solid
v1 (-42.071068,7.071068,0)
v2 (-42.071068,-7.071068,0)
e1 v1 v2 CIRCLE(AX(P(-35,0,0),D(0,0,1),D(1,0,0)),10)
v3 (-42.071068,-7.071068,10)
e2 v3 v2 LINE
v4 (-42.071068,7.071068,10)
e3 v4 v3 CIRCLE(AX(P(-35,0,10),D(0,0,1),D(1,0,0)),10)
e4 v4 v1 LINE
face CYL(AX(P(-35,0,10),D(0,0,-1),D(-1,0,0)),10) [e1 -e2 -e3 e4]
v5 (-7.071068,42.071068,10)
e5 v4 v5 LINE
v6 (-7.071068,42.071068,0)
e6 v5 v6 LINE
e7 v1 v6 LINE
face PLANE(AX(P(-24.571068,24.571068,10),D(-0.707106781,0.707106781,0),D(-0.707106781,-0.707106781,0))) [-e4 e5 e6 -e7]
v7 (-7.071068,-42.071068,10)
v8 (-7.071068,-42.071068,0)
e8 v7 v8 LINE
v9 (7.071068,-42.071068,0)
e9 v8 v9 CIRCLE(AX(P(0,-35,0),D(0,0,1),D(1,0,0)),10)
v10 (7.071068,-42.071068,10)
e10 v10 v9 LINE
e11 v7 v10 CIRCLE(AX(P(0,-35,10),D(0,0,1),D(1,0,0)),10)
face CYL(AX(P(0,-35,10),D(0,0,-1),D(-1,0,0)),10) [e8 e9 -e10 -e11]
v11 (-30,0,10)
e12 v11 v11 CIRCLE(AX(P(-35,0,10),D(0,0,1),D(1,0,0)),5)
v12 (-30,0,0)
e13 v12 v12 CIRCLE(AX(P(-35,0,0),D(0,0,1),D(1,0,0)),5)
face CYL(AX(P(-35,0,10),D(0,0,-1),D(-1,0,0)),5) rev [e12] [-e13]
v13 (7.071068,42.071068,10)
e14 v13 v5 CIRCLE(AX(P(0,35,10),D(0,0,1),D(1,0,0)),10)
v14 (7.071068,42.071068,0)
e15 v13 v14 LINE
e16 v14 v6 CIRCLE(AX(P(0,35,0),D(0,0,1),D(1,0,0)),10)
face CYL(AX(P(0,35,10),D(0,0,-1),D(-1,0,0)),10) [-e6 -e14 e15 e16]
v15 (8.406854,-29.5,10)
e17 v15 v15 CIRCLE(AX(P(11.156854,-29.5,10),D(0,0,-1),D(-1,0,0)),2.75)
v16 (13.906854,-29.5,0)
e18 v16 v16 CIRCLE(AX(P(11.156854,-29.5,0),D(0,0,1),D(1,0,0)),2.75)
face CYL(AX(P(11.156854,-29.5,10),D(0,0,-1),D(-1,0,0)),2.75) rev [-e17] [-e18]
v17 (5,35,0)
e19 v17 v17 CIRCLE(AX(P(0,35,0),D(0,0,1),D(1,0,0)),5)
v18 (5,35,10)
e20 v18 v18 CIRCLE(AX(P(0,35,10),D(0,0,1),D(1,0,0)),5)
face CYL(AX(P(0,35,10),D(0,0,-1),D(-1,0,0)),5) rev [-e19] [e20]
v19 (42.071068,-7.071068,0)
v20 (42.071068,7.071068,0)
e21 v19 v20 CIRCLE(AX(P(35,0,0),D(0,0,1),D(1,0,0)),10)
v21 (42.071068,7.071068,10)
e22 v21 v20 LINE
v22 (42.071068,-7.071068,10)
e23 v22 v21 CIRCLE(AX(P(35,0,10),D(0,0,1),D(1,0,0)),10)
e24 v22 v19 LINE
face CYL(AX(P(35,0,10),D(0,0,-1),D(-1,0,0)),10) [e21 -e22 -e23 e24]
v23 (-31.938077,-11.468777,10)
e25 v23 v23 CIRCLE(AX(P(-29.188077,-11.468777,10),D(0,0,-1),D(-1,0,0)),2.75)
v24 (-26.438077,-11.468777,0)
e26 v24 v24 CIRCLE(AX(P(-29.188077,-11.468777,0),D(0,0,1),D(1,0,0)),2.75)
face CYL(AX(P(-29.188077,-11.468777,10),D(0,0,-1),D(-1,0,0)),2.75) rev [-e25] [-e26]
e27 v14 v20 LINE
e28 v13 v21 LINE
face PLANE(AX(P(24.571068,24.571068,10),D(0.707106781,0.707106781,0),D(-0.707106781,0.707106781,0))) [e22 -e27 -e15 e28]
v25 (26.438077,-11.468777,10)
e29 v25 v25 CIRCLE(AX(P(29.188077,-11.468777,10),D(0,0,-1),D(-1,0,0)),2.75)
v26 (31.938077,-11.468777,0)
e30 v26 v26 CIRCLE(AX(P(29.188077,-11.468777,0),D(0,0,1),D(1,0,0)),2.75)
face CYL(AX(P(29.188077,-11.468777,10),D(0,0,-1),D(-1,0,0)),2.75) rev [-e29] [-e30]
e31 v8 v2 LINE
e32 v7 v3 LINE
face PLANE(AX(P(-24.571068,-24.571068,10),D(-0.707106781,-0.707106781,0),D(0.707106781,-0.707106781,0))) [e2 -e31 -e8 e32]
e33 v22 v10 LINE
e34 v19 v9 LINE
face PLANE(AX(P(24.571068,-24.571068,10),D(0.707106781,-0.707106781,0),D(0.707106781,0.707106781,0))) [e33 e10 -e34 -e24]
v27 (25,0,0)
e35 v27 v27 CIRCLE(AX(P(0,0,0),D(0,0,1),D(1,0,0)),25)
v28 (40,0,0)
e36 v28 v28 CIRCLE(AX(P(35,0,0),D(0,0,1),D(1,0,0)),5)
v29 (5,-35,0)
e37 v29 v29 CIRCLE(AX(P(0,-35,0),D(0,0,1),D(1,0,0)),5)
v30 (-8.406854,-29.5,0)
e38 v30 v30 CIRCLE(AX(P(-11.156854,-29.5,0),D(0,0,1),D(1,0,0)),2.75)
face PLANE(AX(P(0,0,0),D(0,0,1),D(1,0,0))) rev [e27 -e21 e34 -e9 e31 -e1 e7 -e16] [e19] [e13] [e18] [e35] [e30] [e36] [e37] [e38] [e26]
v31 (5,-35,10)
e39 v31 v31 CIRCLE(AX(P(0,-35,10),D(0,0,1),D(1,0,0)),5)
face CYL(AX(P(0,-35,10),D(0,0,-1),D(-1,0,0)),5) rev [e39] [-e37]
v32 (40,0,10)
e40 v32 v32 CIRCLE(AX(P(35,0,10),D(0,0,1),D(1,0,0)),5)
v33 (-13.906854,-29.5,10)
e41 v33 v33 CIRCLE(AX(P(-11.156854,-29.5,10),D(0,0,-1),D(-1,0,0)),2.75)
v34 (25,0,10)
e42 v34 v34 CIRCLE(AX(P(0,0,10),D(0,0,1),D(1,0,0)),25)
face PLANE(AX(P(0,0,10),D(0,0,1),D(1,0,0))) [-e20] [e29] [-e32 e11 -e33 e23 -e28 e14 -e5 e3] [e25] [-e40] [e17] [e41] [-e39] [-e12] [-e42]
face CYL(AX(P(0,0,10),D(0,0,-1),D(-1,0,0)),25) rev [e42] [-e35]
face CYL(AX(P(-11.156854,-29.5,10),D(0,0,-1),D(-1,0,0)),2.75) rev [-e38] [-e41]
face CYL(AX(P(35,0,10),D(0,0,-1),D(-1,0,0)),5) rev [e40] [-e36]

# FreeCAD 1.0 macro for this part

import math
import FreeCAD as App
import Part
import Sketcher

V = App.Vector
Q = App.Units.Quantity

doc = App.newDocument("Part")
params = doc.addObject("Spreadsheet::Sheet", "Params")
for row, (alias, value) in enumerate([
    ("sketch1_diameter", "10 mm"),
    ("sketch1_diameter2", "50 mm"),
    ("sketch1_radius", "10 mm"),
    ("pad1_length", "10 mm"),
    ("sketch2_diameter", "5.5 mm"),
], start=1):
    params.set(f"A{row}", alias)
    params.set(f"B{row}", "=" + value)
    params.setAlias(f"B{row}", alias)

body = doc.addObject("PartDesign::Body", "Body")

# Sketch on XY plane
sketch1 = body.newObject("Sketcher::SketchObject", "Sketch")
sketch1.AttachmentSupport = (doc.getObject("XY_Plane"), [""])
sketch1.MapMode = "FlatFace"
sketch1.addGeometry(Part.LineSegment(V(-7, 42, 0), V(-42, 7, 0)), False)
sketch1.addGeometry(Part.ArcOfCircle(Part.Circle(V(-35, 0, 0), V(0, 0, 1), 10), math.radians(135), math.radians(225)), False)
sketch1.addGeometry(Part.LineSegment(V(-42, -7, 0), V(-7, -42, 0)), False)
sketch1.addGeometry(Part.ArcOfCircle(Part.Circle(V(0, -35, 0), V(0, 0, 1), 10), math.radians(-135), math.radians(-45)), False)
sketch1.addGeometry(Part.LineSegment(V(7, -42, 0), V(42, -7, 0)), False)
sketch1.addGeometry(Part.ArcOfCircle(Part.Circle(V(35, 0, 0), V(0, 0, 1), 10), math.radians(-45), math.radians(45)), False)
sketch1.addGeometry(Part.LineSegment(V(42, 7, 0), V(7, 42, 0)), False)
sketch1.addGeometry(Part.ArcOfCircle(Part.Circle(V(0, 35, 0), V(0, 0, 1), 10), math.radians(45), math.radians(135)), False)
sketch1.addGeometry(Part.Circle(V(0, -35, 0), V(0, 0, 1), 5), False)
sketch1.addGeometry(Part.Circle(V(35, 0, 0), V(0, 0, 1), 5), False)
sketch1.addGeometry(Part.Circle(V(0, 0, 0), V(0, 0, 1), 25), False)
sketch1.addGeometry(Part.Circle(V(-35, 0, 0), V(0, 0, 1), 5), False)
sketch1.addGeometry(Part.Circle(V(0, 35, 0), V(0, 0, 1), 5), False)
sketch1.addConstraint(Sketcher.Constraint("Tangent", 0, 2, 1, 1))
sketch1.addConstraint(Sketcher.Constraint("Tangent", 1, 2, 2, 1))
sketch1.addConstraint(Sketcher.Constraint("Tangent", 2, 2, 3, 1))
sketch1.addConstraint(Sketcher.Constraint("Tangent", 3, 2, 4, 1))
sketch1.addConstraint(Sketcher.Constraint("Tangent", 4, 2, 5, 1))
sketch1.addConstraint(Sketcher.Constraint("Tangent", 5, 2, 6, 1))
sketch1.addConstraint(Sketcher.Constraint("Tangent", 6, 2, 7, 1))
sketch1.addConstraint(Sketcher.Constraint("Tangent", 7, 2, 0, 1))
sketch1.addConstraint(Sketcher.Constraint("Coincident", 10, 3, -1, 1))
sketch1.addConstraint(Sketcher.Constraint("Coincident", 8, 3, 3, 3))
sketch1.addConstraint(Sketcher.Constraint("Coincident", 9, 3, 5, 3))
sketch1.addConstraint(Sketcher.Constraint("Coincident", 11, 3, 1, 3))
sketch1.addConstraint(Sketcher.Constraint("Coincident", 12, 3, 7, 3))
sketch1.addConstraint(Sketcher.Constraint("Equal", 1, 3))
sketch1.addConstraint(Sketcher.Constraint("Equal", 3, 5))
sketch1.addConstraint(Sketcher.Constraint("Equal", 5, 7))
sketch1.addConstraint(Sketcher.Constraint("Equal", 8, 9))
sketch1.addConstraint(Sketcher.Constraint("Equal", 9, 11))
sketch1.addConstraint(Sketcher.Constraint("Equal", 11, 12))
sketch1.addConstraint(Sketcher.Constraint("Symmetric", 1, 3, 5, 3, -1, 1))
sketch1.addConstraint(Sketcher.Constraint("Symmetric", 3, 3, 7, 3, -1, 1))
sketch1.addConstraint(Sketcher.Constraint("Symmetric", 2, 2, 3, 2, -2))
sketch1.addConstraint(Sketcher.Constraint("Perpendicular", 0, 2))
sketch1.addConstraint(Sketcher.Constraint("Diameter", 8, Q("10 mm")))
sketch1.addConstraint(Sketcher.Constraint("Diameter", 10, Q("50 mm")))
sketch1.addConstraint(Sketcher.Constraint("Radius", 1, Q("10 mm")))
sketch1.addConstraint(Sketcher.Constraint("DistanceX", 1, 3, -1, 1, Q("35 mm")))
sketch1.setExpression("Constraints[23]", "Params.sketch1_diameter")
sketch1.setExpression("Constraints[24]", "Params.sketch1_diameter2")
sketch1.setExpression("Constraints[25]", "Params.sketch1_radius")
pad1 = body.newObject("PartDesign::Pad", "Pad")
pad1.Profile = sketch1
pad1.setExpression("Length", "Params.pad1_length")

# Sketch on XY plane
sketch2 = body.newObject("Sketcher::SketchObject", "Sketch001")
sketch2.AttachmentSupport = (doc.getObject("XY_Plane"), [""])
sketch2.MapMode = "FlatFace"
sketch2.addGeometry(Part.Circle(V(-11.2, -29.5, 0), V(0, 0, 1), 2.8), False)
sketch2.addGeometry(Part.Circle(V(-29.2, -11.5, 0), V(0, 0, 1), 2.8), False)
sketch2.addGeometry(Part.Circle(V(11.2, -29.5, 0), V(0, 0, 1), 2.8), False)
sketch2.addGeometry(Part.Circle(V(29.2, -11.5, 0), V(0, 0, 1), 2.8), False)
sketch2.addConstraint(Sketcher.Constraint("Equal", 0, 1))
sketch2.addConstraint(Sketcher.Constraint("Equal", 1, 2))
sketch2.addConstraint(Sketcher.Constraint("Equal", 2, 3))
sketch2.addConstraint(Sketcher.Constraint("Symmetric", 0, 3, 2, 3, -2))
sketch2.addConstraint(Sketcher.Constraint("Symmetric", 1, 3, 3, 3, -2))
sketch2.addConstraint(Sketcher.Constraint("Diameter", 0, Q("5.5 mm")))
sketch2.addConstraint(Sketcher.Constraint("DistanceY", 0, 3, -1, 1, Q("29.5 mm")))
sketch2.addConstraint(Sketcher.Constraint("DistanceX", 0, 3, 2, 3, Q("22.313708 mm")))
sketch2.addConstraint(Sketcher.Constraint("DistanceX", 1, 3, 2, 3, Q("40.344931 mm")))
sketch2.addConstraint(Sketcher.Constraint("DistanceY", 1, 3, -1, 1, Q("11.468777 mm")))
sketch2.setExpression("Constraints[5]", "Params.sketch2_diameter")
pocket1 = body.newObject("PartDesign::Pocket", "Pocket")
pocket1.Profile = sketch2
pocket1.Type = "ThroughAll"
pocket1.Midplane = True

doc.recompute()
